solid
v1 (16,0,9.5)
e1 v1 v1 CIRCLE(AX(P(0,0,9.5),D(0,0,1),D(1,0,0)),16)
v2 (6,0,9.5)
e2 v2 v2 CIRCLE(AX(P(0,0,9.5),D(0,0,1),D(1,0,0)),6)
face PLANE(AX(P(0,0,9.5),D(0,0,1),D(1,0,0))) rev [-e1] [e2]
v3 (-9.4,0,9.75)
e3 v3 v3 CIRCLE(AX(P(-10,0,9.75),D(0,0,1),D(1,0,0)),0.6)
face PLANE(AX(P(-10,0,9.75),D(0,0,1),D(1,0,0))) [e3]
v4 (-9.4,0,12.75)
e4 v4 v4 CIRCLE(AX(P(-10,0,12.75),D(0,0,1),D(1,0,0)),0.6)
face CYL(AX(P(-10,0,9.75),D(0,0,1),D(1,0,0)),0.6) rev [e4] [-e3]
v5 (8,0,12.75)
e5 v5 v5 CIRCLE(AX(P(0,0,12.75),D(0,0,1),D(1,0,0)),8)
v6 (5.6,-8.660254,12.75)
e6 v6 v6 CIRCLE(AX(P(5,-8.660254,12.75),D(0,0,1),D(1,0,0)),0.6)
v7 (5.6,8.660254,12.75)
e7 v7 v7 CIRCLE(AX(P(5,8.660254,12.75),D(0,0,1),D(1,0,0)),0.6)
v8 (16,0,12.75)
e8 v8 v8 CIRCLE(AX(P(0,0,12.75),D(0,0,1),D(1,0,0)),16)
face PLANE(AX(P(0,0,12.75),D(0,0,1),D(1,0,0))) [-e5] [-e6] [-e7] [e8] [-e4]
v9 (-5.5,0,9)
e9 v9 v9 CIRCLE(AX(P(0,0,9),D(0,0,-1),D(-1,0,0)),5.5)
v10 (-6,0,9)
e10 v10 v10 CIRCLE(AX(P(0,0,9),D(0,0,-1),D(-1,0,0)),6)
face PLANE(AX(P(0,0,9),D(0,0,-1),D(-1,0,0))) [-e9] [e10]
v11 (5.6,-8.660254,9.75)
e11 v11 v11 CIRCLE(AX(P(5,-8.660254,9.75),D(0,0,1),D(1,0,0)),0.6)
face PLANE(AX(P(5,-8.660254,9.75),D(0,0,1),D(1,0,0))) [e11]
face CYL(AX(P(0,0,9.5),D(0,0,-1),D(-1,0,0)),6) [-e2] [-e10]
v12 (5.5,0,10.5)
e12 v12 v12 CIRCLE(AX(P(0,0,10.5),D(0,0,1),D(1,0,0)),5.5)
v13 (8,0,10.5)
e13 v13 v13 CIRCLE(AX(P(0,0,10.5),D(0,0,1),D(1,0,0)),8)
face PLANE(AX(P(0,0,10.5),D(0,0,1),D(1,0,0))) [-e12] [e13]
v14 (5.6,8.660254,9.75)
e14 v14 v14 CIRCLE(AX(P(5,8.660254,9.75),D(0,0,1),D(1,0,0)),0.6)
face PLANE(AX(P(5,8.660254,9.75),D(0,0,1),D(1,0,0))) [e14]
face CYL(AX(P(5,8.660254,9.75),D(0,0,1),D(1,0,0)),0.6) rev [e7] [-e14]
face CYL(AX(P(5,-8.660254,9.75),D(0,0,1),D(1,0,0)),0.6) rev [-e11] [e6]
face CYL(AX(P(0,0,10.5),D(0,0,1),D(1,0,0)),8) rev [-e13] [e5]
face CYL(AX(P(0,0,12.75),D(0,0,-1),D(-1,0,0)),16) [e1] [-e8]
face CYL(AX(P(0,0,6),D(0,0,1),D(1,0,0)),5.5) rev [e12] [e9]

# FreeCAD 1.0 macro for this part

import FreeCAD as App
import Part
import Sketcher

V = App.Vector
Q = App.Units.Quantity

doc = App.newDocument("Part")
body = doc.addObject("PartDesign::Body", "Body")

# Sketch on XY plane
sketch1 = body.newObject("Sketcher::SketchObject", "Sketch")
sketch1.AttachmentSupport = (doc.getObject("XY_Plane"), [""])
sketch1.MapMode = "FlatFace"
sketch1.addGeometry(Part.Circle(V(0, 0, 0), V(0, 0, 1), 16), False)
sketch1.addConstraint([
    Sketcher.Constraint("Coincident", 0, 3, -1, 1),
    Sketcher.Constraint("Diameter", 0, Q("32 mm")),
])
pad1 = body.newObject("PartDesign::Pad", "Pad")
pad1.Profile = sketch1
pad1.Length = 9

# Sketch on XY plane
sketch2 = body.newObject("Sketcher::SketchObject", "Sketch001")
sketch2.AttachmentSupport = (doc.getObject("XY_Plane"), [""])
sketch2.MapMode = "FlatFace"
sketch2.AttachmentOffset = App.Placement(V(0, 0, 9), App.Rotation())
sketch2.addGeometry(Part.Circle(V(0, 0, 0), V(0, 0, 1), 6), False)
sketch2.addConstraint([
    Sketcher.Constraint("Coincident", 0, 3, -1, 1),
    Sketcher.Constraint("Diameter", 0, Q("12 mm")),
])
pad2 = body.newObject("PartDesign::Pad", "Pad001")
pad2.Profile = sketch2
pad2.Length = 0.5

# Sketch on XY plane
sketch3 = body.newObject("Sketcher::SketchObject", "Sketch002")
sketch3.AttachmentSupport = (doc.getObject("XY_Plane"), [""])
sketch3.MapMode = "FlatFace"
sketch3.AttachmentOffset = App.Placement(V(0, 0, 9.5), App.Rotation())
sketch3.addGeometry(Part.Circle(V(0, 0, 0), V(0, 0, 1), 16), False)
sketch3.addConstraint([
    Sketcher.Constraint("Coincident", 0, 3, -1, 1),
    Sketcher.Constraint("Diameter", 0, Q("32 mm")),
])
pad3 = body.newObject("PartDesign::Pad", "Pad002")
pad3.Profile = sketch3
pad3.Length = 3.25

# Sketch on XY plane
sketch4 = body.newObject("Sketcher::SketchObject", "Sketch003")
sketch4.AttachmentSupport = (doc.getObject("XY_Plane"), [""])
sketch4.MapMode = "FlatFace"
sketch4.AttachmentOffset = App.Placement(V(0, 0, 12.75), App.Rotation())
sketch4.addGeometry(Part.Circle(V(0, 0, 0), V(0, 0, 1), 6), False)
sketch4.addConstraint([
    Sketcher.Constraint("Coincident", 0, 3, -1, 1),
    Sketcher.Constraint("Diameter", 0, Q("11 mm")),
])
pad4 = body.newObject("PartDesign::Pad", "Pad003")
pad4.Profile = sketch4
pad4.Length = 2.25

# Sketch on XY plane
sketch5 = body.newObject("Sketcher::SketchObject", "Sketch004")
sketch5.AttachmentSupport = (doc.getObject("XY_Plane"), [""])
sketch5.MapMode = "FlatFace"
sketch5.AttachmentOffset = App.Placement(V(0, 0, 15), App.Rotation())
sketch5.addGeometry(Part.Circle(V(0, 0, 0), V(0, 0, 1), 3), False)
sketch5.addConstraint([
    Sketcher.Constraint("Coincident", 0, 3, -1, 1),
    Sketcher.Constraint("Diameter", 0, Q("6 mm")),
])
pocket1 = body.newObject("PartDesign::Pocket", "Pocket")
pocket1.Profile = sketch5
pocket1.Length = 26.25

# Sketch on XY plane
sketch6 = body.newObject("Sketcher::SketchObject", "Sketch005")
sketch6.AttachmentSupport = (doc.getObject("XY_Plane"), [""])
sketch6.MapMode = "FlatFace"
sketch6.AttachmentOffset = App.Placement(V(0, 0, 12.75), App.Rotation())
sketch6.addGeometry([
    Part.Circle(V(0, 0, 0), V(0, 0, 1), 8),
    Part.Circle(V(0, 0, 0), V(0, 0, 1), 6),
], False)
sketch6.addConstraint([
    Sketcher.Constraint("Coincident", 0, 3, -1, 1),
    Sketcher.Constraint("Coincident", 1, 3, -1, 1),
    Sketcher.Constraint("Diameter", 0, Q("16 mm")),
    Sketcher.Constraint("Diameter", 1, Q("11 mm")),
])
pocket2 = body.newObject("PartDesign::Pocket", "Pocket001")
pocket2.Profile = sketch6
pocket2.Length = 2.25

# Sketch on XY plane
sketch7 = body.newObject("Sketcher::SketchObject", "Sketch006")
sketch7.AttachmentSupport = (doc.getObject("XY_Plane"), [""])
sketch7.MapMode = "FlatFace"
sketch7.addGeometry([
    Part.Circle(V(-8.7, 5, 0), V(0, 0, 1), 0.6),
    Part.Circle(V(8.7, 5, 0), V(0, 0, 1), 0.6),
    Part.Circle(V(0, -10, 0), V(0, 0, 1), 0.6),
], False)
sketch7.addConstraint([
    Sketcher.Constraint("Equal", 0, 1),
    Sketcher.Constraint("Equal", 1, 2),
    Sketcher.Constraint("Symmetric", 0, 3, 1, 3, -2),
    Sketcher.Constraint("PointOnObject", 2, 3, -2),
    Sketcher.Constraint("Diameter", 0, Q("1.2 mm")),
    Sketcher.Constraint("DistanceY", -1, 1, 0, 3, Q("5 mm")),
    Sketcher.Constraint("DistanceY", 2, 3, -1, 1, Q("10 mm")),
    Sketcher.Constraint("DistanceX", 0, 3, 1, 3, Q("17.320508 mm")),
])
pocket3 = body.newObject("PartDesign::Pocket", "Pocket002")
pocket3.Profile = sketch7
pocket3.Length = 6
pocket3.Reversed = True

# Sketch on XY plane
sketch8 = body.newObject("Sketcher::SketchObject", "Sketch007")
sketch8.AttachmentSupport = (doc.getObject("XY_Plane"), [""])
sketch8.MapMode = "FlatFace"
sketch8.AttachmentOffset = App.Placement(V(0, 0, 12.75), App.Rotation())
sketch8.addGeometry([
    Part.Circle(V(5, -8.7, 0), V(0, 0, 1), 0.6),
    Part.Circle(V(5, 8.7, 0), V(0, 0, 1), 0.6),
    Part.Circle(V(-10, 0, 0), V(0, 0, 1), 0.6),
], False)
sketch8.addConstraint([
    Sketcher.Constraint("Equal", 0, 1),
    Sketcher.Constraint("Equal", 1, 2),
    Sketcher.Constraint("Symmetric", 0, 3, 1, 3, -1),
    Sketcher.Constraint("PointOnObject", 2, 3, -1),
    Sketcher.Constraint("Diameter", 0, Q("1.2 mm")),
    Sketcher.Constraint("DistanceX", -1, 1, 0, 3, Q("5 mm")),
    Sketcher.Constraint("DistanceX", 2, 3, -1, 1, Q("10 mm")),
    Sketcher.Constraint("DistanceY", 0, 3, 1, 3, Q("17.320508 mm")),
])
pocket4 = body.newObject("PartDesign::Pocket", "Pocket003")
pocket4.Profile = sketch8
pocket4.Length = 3

# Sketch on XY plane
sketch9 = body.newObject("Sketcher::SketchObject", "Sketch008")
sketch9.AttachmentSupport = (doc.getObject("XY_Plane"), [""])
sketch9.MapMode = "FlatFace"
sketch9.addGeometry(Part.Circle(V(0, 0, 0), V(0, 0, 1), 29), False)
sketch9.addConstraint([
    Sketcher.Constraint("Coincident", 0, 3, -1, 1),
    Sketcher.Constraint("Diameter", 0, Q("57.617994 mm")),
])
pocket5 = body.newObject("PartDesign::Pocket", "Pocket004")
pocket5.Profile = sketch9
pocket5.Length = 9
pocket5.Reversed = True

# Sketch on XY plane
sketch10 = body.newObject("Sketcher::SketchObject", "Sketch009")
sketch10.AttachmentSupport = (doc.getObject("XY_Plane"), [""])
sketch10.MapMode = "FlatFace"
sketch10.AttachmentOffset = App.Placement(V(0, 0, 15), App.Rotation())
sketch10.addGeometry(Part.Circle(V(0, 0, 0), V(0, 0, 1), 6), False)
sketch10.addConstraint([
    Sketcher.Constraint("Coincident", 0, 3, -1, 1),
    Sketcher.Constraint("Diameter", 0, Q("11 mm")),
])
pocket6 = body.newObject("PartDesign::Pocket", "Pocket005")
pocket6.Profile = sketch10
pocket6.Length = 9

doc.recompute()
